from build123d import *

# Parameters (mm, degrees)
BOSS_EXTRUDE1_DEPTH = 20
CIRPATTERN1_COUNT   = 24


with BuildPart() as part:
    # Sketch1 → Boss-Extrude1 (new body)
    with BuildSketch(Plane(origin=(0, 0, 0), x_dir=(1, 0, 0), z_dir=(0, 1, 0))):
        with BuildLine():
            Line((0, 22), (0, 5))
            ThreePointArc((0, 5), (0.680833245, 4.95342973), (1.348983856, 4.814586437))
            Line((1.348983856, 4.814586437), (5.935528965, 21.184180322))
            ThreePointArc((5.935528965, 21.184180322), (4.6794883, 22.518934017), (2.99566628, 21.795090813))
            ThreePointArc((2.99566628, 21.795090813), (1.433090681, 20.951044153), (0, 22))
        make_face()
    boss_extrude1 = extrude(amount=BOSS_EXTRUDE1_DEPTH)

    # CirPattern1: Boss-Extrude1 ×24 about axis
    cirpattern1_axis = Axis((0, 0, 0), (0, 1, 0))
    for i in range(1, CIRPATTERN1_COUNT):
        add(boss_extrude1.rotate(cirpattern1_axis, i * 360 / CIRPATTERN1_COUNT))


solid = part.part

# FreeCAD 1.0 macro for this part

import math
import FreeCAD as App
import Part
import Sketcher

doc = App.newDocument("Part")
body = doc.addObject("PartDesign::Body", "Body")

sketch1 = doc.addObject("Sketcher::SketchObject", "Sketch")
body.addObject(sketch1)
sketch1.AttachmentSupport = (doc.XZ_Plane, [""])
sketch1.MapMode = "FlatFace"
sketch1.addGeometry([
    Part.LineSegment(App.Vector(0, -22, 0), App.Vector(0, -5, 0)),
    Part.ArcOfCircle(Part.Circle(App.Vector(0, 0, 0), App.Vector(0, 0, 1), 5), math.radians(-90), math.radians(-74.347826)),
    Part.LineSegment(App.Vector(1.348984, -4.814586, 0), App.Vector(5.935529, -21.18418, 0)),
    Part.ArcOfCircle(Part.Circle(App.Vector(4.354434, -20.954687, 0), App.Vector(0, 0, 1), 1.597663), math.radians(-148.263037), math.radians(-8.258702)),
    Part.ArcOfCircle(Part.Circle(App.Vector(1.546529, -22.609451, 0), App.Vector(0, 0, 1), 1.662282), math.radians(29.334339), math.radians(158.491748)),
], False)
sketch1.addConstraint([
    Sketcher.Constraint("Coincident", 0, 2, 1, 1),
    Sketcher.Constraint("Coincident", 1, 2, 2, 1),
    Sketcher.Constraint("Coincident", 2, 2, 3, 2),
    Sketcher.Constraint("Coincident", 3, 1, 4, 1),
    Sketcher.Constraint("Coincident", 4, 2, 0, 1),
    Sketcher.Constraint("Vertical", 0),
    Sketcher.Constraint("Coincident", 1, 3, -1, 1),
    Sketcher.Constraint("PointOnObject", 0, 2, -2),
    Sketcher.Constraint("Radius", 1, 5.0),
    Sketcher.Constraint("DistanceY", 0, 1, 0, 2, 17.0),
    Sketcher.Constraint("Distance", 2, 17.0),
    Sketcher.Constraint("Radius", 3, 1.597663),
    Sketcher.Constraint("Radius", 4, 1.662282),
    Sketcher.Constraint("DistanceX", 4, 3, 2, 2, 4.389),
    Sketcher.Constraint("DistanceY", 3, 3, 1, 2, 16.140101),
    Sketcher.Constraint("DistanceX", -1, 1, 4, 3, 1.546529),
    Sketcher.Constraint("DistanceY", 3, 1, -1, 1, 21.795091),
])
pad1 = doc.addObject("PartDesign::Pad", "Pad")
body.addObject(pad1)
pad1.Profile = sketch1
pad1.Length = 20
pad1.Reversed = True
doc.recompute()

polarpattern = doc.addObject("PartDesign::PolarPattern", "PolarPattern")
body.addObject(polarpattern)
polarpattern.Originals = [pad1]
polarpattern.Axis = (doc.Y_Axis, [""])
polarpattern.Angle = 360
polarpattern.Occurrences = 24
body.Tip = polarpattern

doc.recompute()
